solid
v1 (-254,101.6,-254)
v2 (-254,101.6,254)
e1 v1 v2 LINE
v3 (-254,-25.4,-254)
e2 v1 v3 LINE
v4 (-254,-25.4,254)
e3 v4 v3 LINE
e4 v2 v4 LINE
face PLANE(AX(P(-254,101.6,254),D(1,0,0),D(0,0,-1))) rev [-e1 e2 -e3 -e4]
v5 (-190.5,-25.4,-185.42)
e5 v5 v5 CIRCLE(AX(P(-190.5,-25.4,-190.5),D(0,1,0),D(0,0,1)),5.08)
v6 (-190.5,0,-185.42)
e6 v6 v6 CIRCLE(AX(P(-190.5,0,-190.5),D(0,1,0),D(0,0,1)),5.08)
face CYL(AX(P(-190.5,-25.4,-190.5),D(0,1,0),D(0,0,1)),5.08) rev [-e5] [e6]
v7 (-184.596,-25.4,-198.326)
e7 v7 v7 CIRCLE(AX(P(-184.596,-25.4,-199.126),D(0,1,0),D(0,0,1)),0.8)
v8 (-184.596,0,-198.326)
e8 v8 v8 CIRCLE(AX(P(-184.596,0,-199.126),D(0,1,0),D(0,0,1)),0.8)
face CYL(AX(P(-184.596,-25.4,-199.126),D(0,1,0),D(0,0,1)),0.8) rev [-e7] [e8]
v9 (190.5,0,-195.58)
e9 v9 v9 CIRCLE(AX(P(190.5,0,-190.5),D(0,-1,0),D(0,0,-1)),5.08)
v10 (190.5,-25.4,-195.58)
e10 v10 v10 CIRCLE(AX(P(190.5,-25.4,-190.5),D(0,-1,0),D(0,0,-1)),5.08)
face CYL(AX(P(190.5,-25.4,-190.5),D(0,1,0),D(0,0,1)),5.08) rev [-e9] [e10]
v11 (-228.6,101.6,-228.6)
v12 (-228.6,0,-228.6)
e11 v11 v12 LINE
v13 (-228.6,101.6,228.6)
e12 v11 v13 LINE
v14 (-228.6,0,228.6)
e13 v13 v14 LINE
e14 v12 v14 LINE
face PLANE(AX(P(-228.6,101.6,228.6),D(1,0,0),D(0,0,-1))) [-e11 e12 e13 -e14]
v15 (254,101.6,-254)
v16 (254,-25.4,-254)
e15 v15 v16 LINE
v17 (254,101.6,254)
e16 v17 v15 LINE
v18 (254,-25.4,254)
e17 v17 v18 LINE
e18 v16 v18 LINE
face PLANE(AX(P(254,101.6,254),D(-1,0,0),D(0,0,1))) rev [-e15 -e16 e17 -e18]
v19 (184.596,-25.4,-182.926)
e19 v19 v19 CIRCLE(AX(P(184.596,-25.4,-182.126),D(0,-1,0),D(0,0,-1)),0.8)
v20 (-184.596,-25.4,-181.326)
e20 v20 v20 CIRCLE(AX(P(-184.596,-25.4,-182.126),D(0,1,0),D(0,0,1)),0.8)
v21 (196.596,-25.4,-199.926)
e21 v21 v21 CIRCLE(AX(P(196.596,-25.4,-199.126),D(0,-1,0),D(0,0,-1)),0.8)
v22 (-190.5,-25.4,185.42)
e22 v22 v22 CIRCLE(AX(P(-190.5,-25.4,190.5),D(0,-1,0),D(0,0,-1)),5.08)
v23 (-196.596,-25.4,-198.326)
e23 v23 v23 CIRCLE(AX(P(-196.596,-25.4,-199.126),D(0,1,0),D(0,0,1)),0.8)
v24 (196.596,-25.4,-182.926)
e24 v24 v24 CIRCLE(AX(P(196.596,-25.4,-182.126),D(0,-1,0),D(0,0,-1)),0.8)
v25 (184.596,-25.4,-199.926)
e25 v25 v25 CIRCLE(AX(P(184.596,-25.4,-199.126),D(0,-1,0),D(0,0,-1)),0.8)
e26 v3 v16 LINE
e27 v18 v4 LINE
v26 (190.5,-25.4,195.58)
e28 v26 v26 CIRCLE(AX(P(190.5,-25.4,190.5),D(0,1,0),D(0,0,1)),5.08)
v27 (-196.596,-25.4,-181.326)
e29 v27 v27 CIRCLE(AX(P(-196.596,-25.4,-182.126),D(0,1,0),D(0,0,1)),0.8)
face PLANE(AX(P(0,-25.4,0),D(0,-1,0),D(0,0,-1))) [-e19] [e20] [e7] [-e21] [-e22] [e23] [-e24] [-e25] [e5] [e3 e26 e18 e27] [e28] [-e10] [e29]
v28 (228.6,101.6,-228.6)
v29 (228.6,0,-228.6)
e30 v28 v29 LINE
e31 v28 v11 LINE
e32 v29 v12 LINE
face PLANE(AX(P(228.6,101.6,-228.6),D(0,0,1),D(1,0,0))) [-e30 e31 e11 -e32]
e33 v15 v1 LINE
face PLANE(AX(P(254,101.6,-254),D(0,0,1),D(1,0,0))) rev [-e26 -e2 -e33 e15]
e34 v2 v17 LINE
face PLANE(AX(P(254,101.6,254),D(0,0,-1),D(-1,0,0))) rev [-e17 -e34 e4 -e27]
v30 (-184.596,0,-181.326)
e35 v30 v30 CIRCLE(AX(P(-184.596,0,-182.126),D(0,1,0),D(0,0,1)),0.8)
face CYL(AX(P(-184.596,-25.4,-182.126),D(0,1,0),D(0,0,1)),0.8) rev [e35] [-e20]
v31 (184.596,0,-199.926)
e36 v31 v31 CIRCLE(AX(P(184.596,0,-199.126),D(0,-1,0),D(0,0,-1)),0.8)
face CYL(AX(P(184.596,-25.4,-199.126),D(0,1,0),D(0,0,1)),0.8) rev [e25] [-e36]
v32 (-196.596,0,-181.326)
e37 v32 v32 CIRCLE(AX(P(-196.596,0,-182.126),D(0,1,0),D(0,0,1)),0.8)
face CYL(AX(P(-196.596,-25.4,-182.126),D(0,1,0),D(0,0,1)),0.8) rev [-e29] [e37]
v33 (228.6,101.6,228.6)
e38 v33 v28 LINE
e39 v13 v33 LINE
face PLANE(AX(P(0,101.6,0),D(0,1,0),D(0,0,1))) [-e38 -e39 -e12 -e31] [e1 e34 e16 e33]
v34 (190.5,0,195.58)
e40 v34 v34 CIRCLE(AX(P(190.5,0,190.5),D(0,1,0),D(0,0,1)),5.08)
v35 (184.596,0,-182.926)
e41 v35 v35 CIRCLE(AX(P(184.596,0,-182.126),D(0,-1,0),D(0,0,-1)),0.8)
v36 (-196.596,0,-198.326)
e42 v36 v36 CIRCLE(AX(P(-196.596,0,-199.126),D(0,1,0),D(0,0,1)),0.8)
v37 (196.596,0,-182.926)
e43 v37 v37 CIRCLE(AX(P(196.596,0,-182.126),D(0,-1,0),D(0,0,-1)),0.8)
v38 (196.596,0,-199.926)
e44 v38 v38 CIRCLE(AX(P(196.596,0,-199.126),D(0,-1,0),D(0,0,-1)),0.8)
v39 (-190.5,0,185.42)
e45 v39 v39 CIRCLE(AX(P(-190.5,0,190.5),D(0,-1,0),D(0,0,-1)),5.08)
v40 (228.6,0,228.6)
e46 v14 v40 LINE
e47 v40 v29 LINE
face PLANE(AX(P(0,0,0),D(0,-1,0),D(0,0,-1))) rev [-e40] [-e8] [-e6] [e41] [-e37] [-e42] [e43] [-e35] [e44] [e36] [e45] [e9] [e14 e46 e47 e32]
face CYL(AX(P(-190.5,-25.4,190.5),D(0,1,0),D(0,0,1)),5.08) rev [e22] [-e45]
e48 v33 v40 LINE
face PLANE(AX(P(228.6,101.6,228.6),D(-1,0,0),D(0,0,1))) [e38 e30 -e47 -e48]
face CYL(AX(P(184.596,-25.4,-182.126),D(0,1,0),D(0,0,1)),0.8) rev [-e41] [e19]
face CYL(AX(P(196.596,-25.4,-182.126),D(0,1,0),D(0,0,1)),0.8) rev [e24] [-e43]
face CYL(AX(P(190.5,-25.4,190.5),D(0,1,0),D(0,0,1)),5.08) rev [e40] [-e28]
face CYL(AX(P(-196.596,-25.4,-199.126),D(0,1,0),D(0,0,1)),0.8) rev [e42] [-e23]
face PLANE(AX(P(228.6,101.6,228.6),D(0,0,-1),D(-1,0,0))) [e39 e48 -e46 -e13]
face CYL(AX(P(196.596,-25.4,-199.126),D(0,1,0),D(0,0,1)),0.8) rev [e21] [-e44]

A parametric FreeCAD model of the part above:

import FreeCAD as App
import Part
import Sketcher

V = App.Vector
Q = App.Units.Quantity

doc = App.newDocument("Part")
params = doc.addObject("Spreadsheet::Sheet", "Params")
for row, (alias, value) in enumerate([
    ("sketch1_width", "20 in"),
    ("sketch1_width2", "18 in"),
    ("pad1_length", "4 in"),
    ("sketch2_width", "20 in"),
    ("pad2_length", "1 in"),
    ("sketch3_diameter", "0.4 in"),
    ("pocket1_length", "1 in"),
], start=1):
    params.set(f"A{row}", alias)
    params.set(f"B{row}", "=" + value)
    params.setAlias(f"B{row}", alias)

body = doc.addObject("PartDesign::Body", "Body")

sketch1 = body.newObject("Sketcher::SketchObject", "Sketch")
sketch1.AttachmentSupport = (doc.getObject("XZ_Plane"), [""])
sketch1.MapMode = "FlatFace"
sketch1.addGeometry([
    Part.LineSegment(V(-254, -254, 0), V(-254, 254, 0)),
    Part.LineSegment(V(-254, 254, 0), V(254, 254, 0)),
    Part.LineSegment(V(254, 254, 0), V(254, -254, 0)),
    Part.LineSegment(V(254, -254, 0), V(-254, -254, 0)),
    Part.LineSegment(V(229, 229, 0), V(-229, 229, 0)),
    Part.LineSegment(V(-229, 229, 0), V(-229, -229, 0)),
    Part.LineSegment(V(-229, -229, 0), V(229, -229, 0)),
    Part.LineSegment(V(229, -229, 0), V(229, 229, 0)),
], False)
sketch1.addConstraint([
    Sketcher.Constraint("Coincident", 0, 2, 1, 1),
    Sketcher.Constraint("Coincident", 1, 2, 2, 1),
    Sketcher.Constraint("Coincident", 2, 2, 3, 1),
    Sketcher.Constraint("Coincident", 3, 2, 0, 1),
    Sketcher.Constraint("Coincident", 4, 2, 5, 1),
    Sketcher.Constraint("Coincident", 5, 2, 6, 1),
    Sketcher.Constraint("Coincident", 6, 2, 7, 1),
    Sketcher.Constraint("Coincident", 7, 2, 4, 1),
    Sketcher.Constraint("Vertical", 0),
    Sketcher.Constraint("Horizontal", 1),
    Sketcher.Constraint("Vertical", 2),
    Sketcher.Constraint("Horizontal", 3),
    Sketcher.Constraint("Horizontal", 4),
    Sketcher.Constraint("Vertical", 5),
    Sketcher.Constraint("Horizontal", 6),
    Sketcher.Constraint("Vertical", 7),
    Sketcher.Constraint("Symmetric", 0, 2, 2, 2, -1, 1),
    Sketcher.Constraint("Symmetric", 4, 2, 6, 2, -1, 1),
    Sketcher.Constraint("Equal", 3, 0),
    Sketcher.Constraint("Equal", 6, 5),
    Sketcher.Constraint("DistanceX", 1, 1, 1, 2, Q("20 in")),
    Sketcher.Constraint("DistanceX", 4, 2, 4, 1, Q("18 in")),
])
sketch1.setExpression("Constraints[20]", "Params.sketch1_width")
sketch1.setExpression("Constraints[21]", "Params.sketch1_width2")
pad1 = body.newObject("PartDesign::Pad", "Pad")
pad1.Profile = sketch1
pad1.setExpression("Length", "Params.pad1_length")
pad1.Reversed = True

sketch2 = body.newObject("Sketcher::SketchObject", "Sketch001")
sketch2.AttachmentSupport = (doc.getObject("XZ_Plane"), [""])
sketch2.MapMode = "FlatFace"
sketch2.addGeometry([
    Part.LineSegment(V(-254, 254, 0), V(-254, -254, 0)),
    Part.LineSegment(V(-254, -254, 0), V(254, -254, 0)),
    Part.LineSegment(V(254, -254, 0), V(254, 254, 0)),
    Part.LineSegment(V(254, 254, 0), V(-254, 254, 0)),
], False)
sketch2.addConstraint([
    Sketcher.Constraint("Coincident", 0, 2, 1, 1),
    Sketcher.Constraint("Coincident", 1, 2, 2, 1),
    Sketcher.Constraint("Coincident", 2, 2, 3, 1),
    Sketcher.Constraint("Coincident", 3, 2, 0, 1),
    Sketcher.Constraint("Vertical", 0),
    Sketcher.Constraint("Horizontal", 1),
    Sketcher.Constraint("Vertical", 2),
    Sketcher.Constraint("Horizontal", 3),
    Sketcher.Constraint("Symmetric", 0, 2, 2, 2, -1, 1),
    Sketcher.Constraint("Equal", 3, 0),
    Sketcher.Constraint("DistanceX", 1, 1, 1, 2, Q("20 in")),
])
sketch2.setExpression("Constraints[10]", "Params.sketch2_width")
pad2 = body.newObject("PartDesign::Pad", "Pad001")
pad2.Profile = sketch2
pad2.setExpression("Length", "Params.pad2_length")

sketch3 = body.newObject("Sketcher::SketchObject", "Sketch002")
sketch3.AttachmentSupport = (doc.getObject("XZ_Plane"), [""])
sketch3.MapMode = "FlatFace"
sketch3.addGeometry([
    Part.Circle(V(-196.6, -199.1, 0), V(0, 0, 1), 0.8),
    Part.Circle(V(-184.6, -199.1, 0), V(0, 0, 1), 0.8),
    Part.Circle(V(-190.5, -190.5, 0), V(0, 0, 1), 5.1),
    Part.Circle(V(-184.6, -182.1, 0), V(0, 0, 1), 0.8),
    Part.Circle(V(-196.6, -182.1, 0), V(0, 0, 1), 0.8),
    Part.Circle(V(190.5, -190.5, 0), V(0, 0, 1), 5.1),
    Part.Circle(V(184.6, -199.1, 0), V(0, 0, 1), 0.8),
    Part.Circle(V(184.6, -182.1, 0), V(0, 0, 1), 0.8),
    Part.Circle(V(196.6, -182.1, 0), V(0, 0, 1), 0.8),
    Part.Circle(V(196.6, -199.1, 0), V(0, 0, 1), 0.8),
    Part.Circle(V(190.5, 190.5, 0), V(0, 0, 1), 5.1),
    Part.Circle(V(-190.5, 190.5, 0), V(0, 0, 1), 5.1),
], False)
sketch3.addConstraint([
    Sketcher.Constraint("Equal", 0, 1),
    Sketcher.Constraint("Equal", 1, 3),
    Sketcher.Constraint("Equal", 3, 4),
    Sketcher.Constraint("Equal", 2, 5),
    Sketcher.Constraint("Equal", 4, 6),
    Sketcher.Constraint("Equal", 6, 7),
    Sketcher.Constraint("Equal", 7, 8),
    Sketcher.Constraint("Equal", 8, 9),
    Sketcher.Constraint("Equal", 5, 10),
    Sketcher.Constraint("Equal", 10, 11),
    Sketcher.Constraint("Symmetric", 2, 3, 10, 3, -1, 1),
    Sketcher.Constraint("Symmetric", 5, 3, 11, 3, -1, 1),
    Sketcher.Constraint("Symmetric", 2, 3, 5, 3, -2),
    Sketcher.Constraint("Symmetric", 1, 3, 6, 3, -2),
    Sketcher.Constraint("Symmetric", 3, 3, 7, 3, -2),
    Sketcher.Constraint("Symmetric", 4, 3, 8, 3, -2),
    Sketcher.Constraint("Symmetric", 0, 3, 9, 3, -2),
    Sketcher.Constraint("Horizontal", 0, 3, 1, 3),
    Sketcher.Constraint("Horizontal", 3, 3, 4, 3),
    Sketcher.Constraint("Vertical", 1, 3, 3, 3),
    Sketcher.Constraint("Vertical", 0, 3, 4, 3),
    Sketcher.Constraint("Diameter", 2, Q("0.4 in")),
    Sketcher.Constraint("DistanceX", 2, 3, 5, 3, Q("15 in")),
    Sketcher.Constraint("DistanceY", 5, 3, 10, 3, Q("15 in")),
    Sketcher.Constraint("Diameter", 0, Q("1.6 mm")),
    Sketcher.Constraint("DistanceX", 0, 3, -1, 1, Q("7.74 in")),
    Sketcher.Constraint("DistanceY", 0, 3, -1, 1, Q("199.126 mm")),
    Sketcher.Constraint("DistanceX", 1, 3, -1, 1, Q("184.596 mm")),
    Sketcher.Constraint("DistanceY", 3, 3, -1, 1, Q("182.126 mm")),
])
sketch3.setExpression("Constraints[21]", "Params.sketch3_diameter")
pocket1 = body.newObject("PartDesign::Pocket", "Pocket")
pocket1.Profile = sketch3
pocket1.setExpression("Length", "Params.pocket1_length")
pocket1.Reversed = True

doc.recompute()
